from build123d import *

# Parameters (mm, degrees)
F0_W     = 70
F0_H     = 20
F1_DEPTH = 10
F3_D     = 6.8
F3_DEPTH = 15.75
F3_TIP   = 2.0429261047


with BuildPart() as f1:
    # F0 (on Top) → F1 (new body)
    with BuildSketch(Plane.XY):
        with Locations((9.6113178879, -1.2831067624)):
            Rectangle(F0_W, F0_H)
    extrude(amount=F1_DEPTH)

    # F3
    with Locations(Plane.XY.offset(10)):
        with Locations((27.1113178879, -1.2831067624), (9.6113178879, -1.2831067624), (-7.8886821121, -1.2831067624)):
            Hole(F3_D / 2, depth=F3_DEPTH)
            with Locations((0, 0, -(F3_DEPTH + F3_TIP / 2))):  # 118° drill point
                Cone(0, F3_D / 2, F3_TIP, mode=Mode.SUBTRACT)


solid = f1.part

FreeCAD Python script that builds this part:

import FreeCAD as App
import Part
import Sketcher
Q = App.Units.Quantity


def add_polygon(sketch, points):
    """Adds a closed chain of lines whose ends are joined by coincident constraints."""
    first, n = sketch.GeometryCount, len(points)
    for a, b in zip(points, points[1:] + points[:1]):
        sketch.addGeometry(Part.LineSegment(App.Vector(*a, 0), App.Vector(*b, 0)), False)
    for i in range(n):
        sketch.addConstraint(Sketcher.Constraint("Coincident", first + i, 2, first + (i + 1) % n, 1))

doc = App.newDocument("Part")
body = doc.addObject("PartDesign::Body", "Body")

# Sketch on XY plane
sketch1 = body.newObject("Sketcher::SketchObject", "Sketch")
sketch1.AttachmentSupport = (doc.getObject("XY_Plane"), [""])
sketch1.MapMode = "FlatFace"
add_polygon(sketch1, [(-25.388682, 8.716893), (-25.388682, -11.283107), (44.611318, -11.283107), (44.611318, 8.716893)])  # lines 0-3
sketch1.addConstraint([
    Sketcher.Constraint("Vertical", 0),
    Sketcher.Constraint("Horizontal", 1),
    Sketcher.Constraint("Vertical", 2),
    Sketcher.Constraint("Horizontal", 3),
    Sketcher.Constraint("DistanceX", 1, 1, 1, 2, Q("70 mm")),
    Sketcher.Constraint("DistanceY", 0, 2, 0, 1, Q("20 mm")),
    Sketcher.Constraint("DistanceX", 0, 2, -1, 1, Q("25.388682 mm")),
    Sketcher.Constraint("DistanceY", 0, 2, -1, 1, Q("11.283107 mm")),
])
pad1 = body.newObject("PartDesign::Pad", "Pad")
pad1.Profile = sketch1
pad1.Length = 10

# Sketch on XY plane
sketch2 = body.newObject("Sketcher::SketchObject", "Sketch001")
sketch2.AttachmentSupport = (doc.getObject("XY_Plane"), [""])
sketch2.MapMode = "FlatFace"
sketch2.AttachmentOffset = App.Placement(App.Vector(0, 0, 10), App.Rotation())
sketch2.addGeometry([
    Part.Circle(App.Vector(27.111318, -1.283107, 0), App.Vector(0, 0, 1), 3.4),
    Part.Circle(App.Vector(9.611318, -1.283107, 0), App.Vector(0, 0, 1), 3.4),
    Part.Circle(App.Vector(-7.888682, -1.283107, 0), App.Vector(0, 0, 1), 3.4),
], False)
sketch2.addConstraint([
    Sketcher.Constraint("Equal", 0, 1),
    Sketcher.Constraint("Equal", 1, 2),
    Sketcher.Constraint("Horizontal", 0, 3, 1, 3),
    Sketcher.Constraint("Horizontal", 1, 3, 2, 3),
    Sketcher.Constraint("Diameter", 0, Q("6.8 mm")),
    Sketcher.Constraint("DistanceX", 2, 3, 0, 3, Q("35 mm")),
    Sketcher.Constraint("DistanceX", 1, 3, 0, 3, Q("17.5 mm")),
    Sketcher.Constraint("DistanceX", -1, 1, 0, 3, Q("27.111318 mm")),
    Sketcher.Constraint("DistanceY", 0, 3, -1, 1, Q("1.283107 mm")),
])
doc.recompute()
hole = body.newObject("PartDesign::Hole", "Hole")
hole.Profile = sketch2
hole.ThreadType = "None"
hole.Diameter = 6.8
hole.DepthType = "Dimension"
hole.Depth = 15.75
hole.DrillPoint = "Angled"
hole.DrillPointAngle = 118

doc.recompute()
